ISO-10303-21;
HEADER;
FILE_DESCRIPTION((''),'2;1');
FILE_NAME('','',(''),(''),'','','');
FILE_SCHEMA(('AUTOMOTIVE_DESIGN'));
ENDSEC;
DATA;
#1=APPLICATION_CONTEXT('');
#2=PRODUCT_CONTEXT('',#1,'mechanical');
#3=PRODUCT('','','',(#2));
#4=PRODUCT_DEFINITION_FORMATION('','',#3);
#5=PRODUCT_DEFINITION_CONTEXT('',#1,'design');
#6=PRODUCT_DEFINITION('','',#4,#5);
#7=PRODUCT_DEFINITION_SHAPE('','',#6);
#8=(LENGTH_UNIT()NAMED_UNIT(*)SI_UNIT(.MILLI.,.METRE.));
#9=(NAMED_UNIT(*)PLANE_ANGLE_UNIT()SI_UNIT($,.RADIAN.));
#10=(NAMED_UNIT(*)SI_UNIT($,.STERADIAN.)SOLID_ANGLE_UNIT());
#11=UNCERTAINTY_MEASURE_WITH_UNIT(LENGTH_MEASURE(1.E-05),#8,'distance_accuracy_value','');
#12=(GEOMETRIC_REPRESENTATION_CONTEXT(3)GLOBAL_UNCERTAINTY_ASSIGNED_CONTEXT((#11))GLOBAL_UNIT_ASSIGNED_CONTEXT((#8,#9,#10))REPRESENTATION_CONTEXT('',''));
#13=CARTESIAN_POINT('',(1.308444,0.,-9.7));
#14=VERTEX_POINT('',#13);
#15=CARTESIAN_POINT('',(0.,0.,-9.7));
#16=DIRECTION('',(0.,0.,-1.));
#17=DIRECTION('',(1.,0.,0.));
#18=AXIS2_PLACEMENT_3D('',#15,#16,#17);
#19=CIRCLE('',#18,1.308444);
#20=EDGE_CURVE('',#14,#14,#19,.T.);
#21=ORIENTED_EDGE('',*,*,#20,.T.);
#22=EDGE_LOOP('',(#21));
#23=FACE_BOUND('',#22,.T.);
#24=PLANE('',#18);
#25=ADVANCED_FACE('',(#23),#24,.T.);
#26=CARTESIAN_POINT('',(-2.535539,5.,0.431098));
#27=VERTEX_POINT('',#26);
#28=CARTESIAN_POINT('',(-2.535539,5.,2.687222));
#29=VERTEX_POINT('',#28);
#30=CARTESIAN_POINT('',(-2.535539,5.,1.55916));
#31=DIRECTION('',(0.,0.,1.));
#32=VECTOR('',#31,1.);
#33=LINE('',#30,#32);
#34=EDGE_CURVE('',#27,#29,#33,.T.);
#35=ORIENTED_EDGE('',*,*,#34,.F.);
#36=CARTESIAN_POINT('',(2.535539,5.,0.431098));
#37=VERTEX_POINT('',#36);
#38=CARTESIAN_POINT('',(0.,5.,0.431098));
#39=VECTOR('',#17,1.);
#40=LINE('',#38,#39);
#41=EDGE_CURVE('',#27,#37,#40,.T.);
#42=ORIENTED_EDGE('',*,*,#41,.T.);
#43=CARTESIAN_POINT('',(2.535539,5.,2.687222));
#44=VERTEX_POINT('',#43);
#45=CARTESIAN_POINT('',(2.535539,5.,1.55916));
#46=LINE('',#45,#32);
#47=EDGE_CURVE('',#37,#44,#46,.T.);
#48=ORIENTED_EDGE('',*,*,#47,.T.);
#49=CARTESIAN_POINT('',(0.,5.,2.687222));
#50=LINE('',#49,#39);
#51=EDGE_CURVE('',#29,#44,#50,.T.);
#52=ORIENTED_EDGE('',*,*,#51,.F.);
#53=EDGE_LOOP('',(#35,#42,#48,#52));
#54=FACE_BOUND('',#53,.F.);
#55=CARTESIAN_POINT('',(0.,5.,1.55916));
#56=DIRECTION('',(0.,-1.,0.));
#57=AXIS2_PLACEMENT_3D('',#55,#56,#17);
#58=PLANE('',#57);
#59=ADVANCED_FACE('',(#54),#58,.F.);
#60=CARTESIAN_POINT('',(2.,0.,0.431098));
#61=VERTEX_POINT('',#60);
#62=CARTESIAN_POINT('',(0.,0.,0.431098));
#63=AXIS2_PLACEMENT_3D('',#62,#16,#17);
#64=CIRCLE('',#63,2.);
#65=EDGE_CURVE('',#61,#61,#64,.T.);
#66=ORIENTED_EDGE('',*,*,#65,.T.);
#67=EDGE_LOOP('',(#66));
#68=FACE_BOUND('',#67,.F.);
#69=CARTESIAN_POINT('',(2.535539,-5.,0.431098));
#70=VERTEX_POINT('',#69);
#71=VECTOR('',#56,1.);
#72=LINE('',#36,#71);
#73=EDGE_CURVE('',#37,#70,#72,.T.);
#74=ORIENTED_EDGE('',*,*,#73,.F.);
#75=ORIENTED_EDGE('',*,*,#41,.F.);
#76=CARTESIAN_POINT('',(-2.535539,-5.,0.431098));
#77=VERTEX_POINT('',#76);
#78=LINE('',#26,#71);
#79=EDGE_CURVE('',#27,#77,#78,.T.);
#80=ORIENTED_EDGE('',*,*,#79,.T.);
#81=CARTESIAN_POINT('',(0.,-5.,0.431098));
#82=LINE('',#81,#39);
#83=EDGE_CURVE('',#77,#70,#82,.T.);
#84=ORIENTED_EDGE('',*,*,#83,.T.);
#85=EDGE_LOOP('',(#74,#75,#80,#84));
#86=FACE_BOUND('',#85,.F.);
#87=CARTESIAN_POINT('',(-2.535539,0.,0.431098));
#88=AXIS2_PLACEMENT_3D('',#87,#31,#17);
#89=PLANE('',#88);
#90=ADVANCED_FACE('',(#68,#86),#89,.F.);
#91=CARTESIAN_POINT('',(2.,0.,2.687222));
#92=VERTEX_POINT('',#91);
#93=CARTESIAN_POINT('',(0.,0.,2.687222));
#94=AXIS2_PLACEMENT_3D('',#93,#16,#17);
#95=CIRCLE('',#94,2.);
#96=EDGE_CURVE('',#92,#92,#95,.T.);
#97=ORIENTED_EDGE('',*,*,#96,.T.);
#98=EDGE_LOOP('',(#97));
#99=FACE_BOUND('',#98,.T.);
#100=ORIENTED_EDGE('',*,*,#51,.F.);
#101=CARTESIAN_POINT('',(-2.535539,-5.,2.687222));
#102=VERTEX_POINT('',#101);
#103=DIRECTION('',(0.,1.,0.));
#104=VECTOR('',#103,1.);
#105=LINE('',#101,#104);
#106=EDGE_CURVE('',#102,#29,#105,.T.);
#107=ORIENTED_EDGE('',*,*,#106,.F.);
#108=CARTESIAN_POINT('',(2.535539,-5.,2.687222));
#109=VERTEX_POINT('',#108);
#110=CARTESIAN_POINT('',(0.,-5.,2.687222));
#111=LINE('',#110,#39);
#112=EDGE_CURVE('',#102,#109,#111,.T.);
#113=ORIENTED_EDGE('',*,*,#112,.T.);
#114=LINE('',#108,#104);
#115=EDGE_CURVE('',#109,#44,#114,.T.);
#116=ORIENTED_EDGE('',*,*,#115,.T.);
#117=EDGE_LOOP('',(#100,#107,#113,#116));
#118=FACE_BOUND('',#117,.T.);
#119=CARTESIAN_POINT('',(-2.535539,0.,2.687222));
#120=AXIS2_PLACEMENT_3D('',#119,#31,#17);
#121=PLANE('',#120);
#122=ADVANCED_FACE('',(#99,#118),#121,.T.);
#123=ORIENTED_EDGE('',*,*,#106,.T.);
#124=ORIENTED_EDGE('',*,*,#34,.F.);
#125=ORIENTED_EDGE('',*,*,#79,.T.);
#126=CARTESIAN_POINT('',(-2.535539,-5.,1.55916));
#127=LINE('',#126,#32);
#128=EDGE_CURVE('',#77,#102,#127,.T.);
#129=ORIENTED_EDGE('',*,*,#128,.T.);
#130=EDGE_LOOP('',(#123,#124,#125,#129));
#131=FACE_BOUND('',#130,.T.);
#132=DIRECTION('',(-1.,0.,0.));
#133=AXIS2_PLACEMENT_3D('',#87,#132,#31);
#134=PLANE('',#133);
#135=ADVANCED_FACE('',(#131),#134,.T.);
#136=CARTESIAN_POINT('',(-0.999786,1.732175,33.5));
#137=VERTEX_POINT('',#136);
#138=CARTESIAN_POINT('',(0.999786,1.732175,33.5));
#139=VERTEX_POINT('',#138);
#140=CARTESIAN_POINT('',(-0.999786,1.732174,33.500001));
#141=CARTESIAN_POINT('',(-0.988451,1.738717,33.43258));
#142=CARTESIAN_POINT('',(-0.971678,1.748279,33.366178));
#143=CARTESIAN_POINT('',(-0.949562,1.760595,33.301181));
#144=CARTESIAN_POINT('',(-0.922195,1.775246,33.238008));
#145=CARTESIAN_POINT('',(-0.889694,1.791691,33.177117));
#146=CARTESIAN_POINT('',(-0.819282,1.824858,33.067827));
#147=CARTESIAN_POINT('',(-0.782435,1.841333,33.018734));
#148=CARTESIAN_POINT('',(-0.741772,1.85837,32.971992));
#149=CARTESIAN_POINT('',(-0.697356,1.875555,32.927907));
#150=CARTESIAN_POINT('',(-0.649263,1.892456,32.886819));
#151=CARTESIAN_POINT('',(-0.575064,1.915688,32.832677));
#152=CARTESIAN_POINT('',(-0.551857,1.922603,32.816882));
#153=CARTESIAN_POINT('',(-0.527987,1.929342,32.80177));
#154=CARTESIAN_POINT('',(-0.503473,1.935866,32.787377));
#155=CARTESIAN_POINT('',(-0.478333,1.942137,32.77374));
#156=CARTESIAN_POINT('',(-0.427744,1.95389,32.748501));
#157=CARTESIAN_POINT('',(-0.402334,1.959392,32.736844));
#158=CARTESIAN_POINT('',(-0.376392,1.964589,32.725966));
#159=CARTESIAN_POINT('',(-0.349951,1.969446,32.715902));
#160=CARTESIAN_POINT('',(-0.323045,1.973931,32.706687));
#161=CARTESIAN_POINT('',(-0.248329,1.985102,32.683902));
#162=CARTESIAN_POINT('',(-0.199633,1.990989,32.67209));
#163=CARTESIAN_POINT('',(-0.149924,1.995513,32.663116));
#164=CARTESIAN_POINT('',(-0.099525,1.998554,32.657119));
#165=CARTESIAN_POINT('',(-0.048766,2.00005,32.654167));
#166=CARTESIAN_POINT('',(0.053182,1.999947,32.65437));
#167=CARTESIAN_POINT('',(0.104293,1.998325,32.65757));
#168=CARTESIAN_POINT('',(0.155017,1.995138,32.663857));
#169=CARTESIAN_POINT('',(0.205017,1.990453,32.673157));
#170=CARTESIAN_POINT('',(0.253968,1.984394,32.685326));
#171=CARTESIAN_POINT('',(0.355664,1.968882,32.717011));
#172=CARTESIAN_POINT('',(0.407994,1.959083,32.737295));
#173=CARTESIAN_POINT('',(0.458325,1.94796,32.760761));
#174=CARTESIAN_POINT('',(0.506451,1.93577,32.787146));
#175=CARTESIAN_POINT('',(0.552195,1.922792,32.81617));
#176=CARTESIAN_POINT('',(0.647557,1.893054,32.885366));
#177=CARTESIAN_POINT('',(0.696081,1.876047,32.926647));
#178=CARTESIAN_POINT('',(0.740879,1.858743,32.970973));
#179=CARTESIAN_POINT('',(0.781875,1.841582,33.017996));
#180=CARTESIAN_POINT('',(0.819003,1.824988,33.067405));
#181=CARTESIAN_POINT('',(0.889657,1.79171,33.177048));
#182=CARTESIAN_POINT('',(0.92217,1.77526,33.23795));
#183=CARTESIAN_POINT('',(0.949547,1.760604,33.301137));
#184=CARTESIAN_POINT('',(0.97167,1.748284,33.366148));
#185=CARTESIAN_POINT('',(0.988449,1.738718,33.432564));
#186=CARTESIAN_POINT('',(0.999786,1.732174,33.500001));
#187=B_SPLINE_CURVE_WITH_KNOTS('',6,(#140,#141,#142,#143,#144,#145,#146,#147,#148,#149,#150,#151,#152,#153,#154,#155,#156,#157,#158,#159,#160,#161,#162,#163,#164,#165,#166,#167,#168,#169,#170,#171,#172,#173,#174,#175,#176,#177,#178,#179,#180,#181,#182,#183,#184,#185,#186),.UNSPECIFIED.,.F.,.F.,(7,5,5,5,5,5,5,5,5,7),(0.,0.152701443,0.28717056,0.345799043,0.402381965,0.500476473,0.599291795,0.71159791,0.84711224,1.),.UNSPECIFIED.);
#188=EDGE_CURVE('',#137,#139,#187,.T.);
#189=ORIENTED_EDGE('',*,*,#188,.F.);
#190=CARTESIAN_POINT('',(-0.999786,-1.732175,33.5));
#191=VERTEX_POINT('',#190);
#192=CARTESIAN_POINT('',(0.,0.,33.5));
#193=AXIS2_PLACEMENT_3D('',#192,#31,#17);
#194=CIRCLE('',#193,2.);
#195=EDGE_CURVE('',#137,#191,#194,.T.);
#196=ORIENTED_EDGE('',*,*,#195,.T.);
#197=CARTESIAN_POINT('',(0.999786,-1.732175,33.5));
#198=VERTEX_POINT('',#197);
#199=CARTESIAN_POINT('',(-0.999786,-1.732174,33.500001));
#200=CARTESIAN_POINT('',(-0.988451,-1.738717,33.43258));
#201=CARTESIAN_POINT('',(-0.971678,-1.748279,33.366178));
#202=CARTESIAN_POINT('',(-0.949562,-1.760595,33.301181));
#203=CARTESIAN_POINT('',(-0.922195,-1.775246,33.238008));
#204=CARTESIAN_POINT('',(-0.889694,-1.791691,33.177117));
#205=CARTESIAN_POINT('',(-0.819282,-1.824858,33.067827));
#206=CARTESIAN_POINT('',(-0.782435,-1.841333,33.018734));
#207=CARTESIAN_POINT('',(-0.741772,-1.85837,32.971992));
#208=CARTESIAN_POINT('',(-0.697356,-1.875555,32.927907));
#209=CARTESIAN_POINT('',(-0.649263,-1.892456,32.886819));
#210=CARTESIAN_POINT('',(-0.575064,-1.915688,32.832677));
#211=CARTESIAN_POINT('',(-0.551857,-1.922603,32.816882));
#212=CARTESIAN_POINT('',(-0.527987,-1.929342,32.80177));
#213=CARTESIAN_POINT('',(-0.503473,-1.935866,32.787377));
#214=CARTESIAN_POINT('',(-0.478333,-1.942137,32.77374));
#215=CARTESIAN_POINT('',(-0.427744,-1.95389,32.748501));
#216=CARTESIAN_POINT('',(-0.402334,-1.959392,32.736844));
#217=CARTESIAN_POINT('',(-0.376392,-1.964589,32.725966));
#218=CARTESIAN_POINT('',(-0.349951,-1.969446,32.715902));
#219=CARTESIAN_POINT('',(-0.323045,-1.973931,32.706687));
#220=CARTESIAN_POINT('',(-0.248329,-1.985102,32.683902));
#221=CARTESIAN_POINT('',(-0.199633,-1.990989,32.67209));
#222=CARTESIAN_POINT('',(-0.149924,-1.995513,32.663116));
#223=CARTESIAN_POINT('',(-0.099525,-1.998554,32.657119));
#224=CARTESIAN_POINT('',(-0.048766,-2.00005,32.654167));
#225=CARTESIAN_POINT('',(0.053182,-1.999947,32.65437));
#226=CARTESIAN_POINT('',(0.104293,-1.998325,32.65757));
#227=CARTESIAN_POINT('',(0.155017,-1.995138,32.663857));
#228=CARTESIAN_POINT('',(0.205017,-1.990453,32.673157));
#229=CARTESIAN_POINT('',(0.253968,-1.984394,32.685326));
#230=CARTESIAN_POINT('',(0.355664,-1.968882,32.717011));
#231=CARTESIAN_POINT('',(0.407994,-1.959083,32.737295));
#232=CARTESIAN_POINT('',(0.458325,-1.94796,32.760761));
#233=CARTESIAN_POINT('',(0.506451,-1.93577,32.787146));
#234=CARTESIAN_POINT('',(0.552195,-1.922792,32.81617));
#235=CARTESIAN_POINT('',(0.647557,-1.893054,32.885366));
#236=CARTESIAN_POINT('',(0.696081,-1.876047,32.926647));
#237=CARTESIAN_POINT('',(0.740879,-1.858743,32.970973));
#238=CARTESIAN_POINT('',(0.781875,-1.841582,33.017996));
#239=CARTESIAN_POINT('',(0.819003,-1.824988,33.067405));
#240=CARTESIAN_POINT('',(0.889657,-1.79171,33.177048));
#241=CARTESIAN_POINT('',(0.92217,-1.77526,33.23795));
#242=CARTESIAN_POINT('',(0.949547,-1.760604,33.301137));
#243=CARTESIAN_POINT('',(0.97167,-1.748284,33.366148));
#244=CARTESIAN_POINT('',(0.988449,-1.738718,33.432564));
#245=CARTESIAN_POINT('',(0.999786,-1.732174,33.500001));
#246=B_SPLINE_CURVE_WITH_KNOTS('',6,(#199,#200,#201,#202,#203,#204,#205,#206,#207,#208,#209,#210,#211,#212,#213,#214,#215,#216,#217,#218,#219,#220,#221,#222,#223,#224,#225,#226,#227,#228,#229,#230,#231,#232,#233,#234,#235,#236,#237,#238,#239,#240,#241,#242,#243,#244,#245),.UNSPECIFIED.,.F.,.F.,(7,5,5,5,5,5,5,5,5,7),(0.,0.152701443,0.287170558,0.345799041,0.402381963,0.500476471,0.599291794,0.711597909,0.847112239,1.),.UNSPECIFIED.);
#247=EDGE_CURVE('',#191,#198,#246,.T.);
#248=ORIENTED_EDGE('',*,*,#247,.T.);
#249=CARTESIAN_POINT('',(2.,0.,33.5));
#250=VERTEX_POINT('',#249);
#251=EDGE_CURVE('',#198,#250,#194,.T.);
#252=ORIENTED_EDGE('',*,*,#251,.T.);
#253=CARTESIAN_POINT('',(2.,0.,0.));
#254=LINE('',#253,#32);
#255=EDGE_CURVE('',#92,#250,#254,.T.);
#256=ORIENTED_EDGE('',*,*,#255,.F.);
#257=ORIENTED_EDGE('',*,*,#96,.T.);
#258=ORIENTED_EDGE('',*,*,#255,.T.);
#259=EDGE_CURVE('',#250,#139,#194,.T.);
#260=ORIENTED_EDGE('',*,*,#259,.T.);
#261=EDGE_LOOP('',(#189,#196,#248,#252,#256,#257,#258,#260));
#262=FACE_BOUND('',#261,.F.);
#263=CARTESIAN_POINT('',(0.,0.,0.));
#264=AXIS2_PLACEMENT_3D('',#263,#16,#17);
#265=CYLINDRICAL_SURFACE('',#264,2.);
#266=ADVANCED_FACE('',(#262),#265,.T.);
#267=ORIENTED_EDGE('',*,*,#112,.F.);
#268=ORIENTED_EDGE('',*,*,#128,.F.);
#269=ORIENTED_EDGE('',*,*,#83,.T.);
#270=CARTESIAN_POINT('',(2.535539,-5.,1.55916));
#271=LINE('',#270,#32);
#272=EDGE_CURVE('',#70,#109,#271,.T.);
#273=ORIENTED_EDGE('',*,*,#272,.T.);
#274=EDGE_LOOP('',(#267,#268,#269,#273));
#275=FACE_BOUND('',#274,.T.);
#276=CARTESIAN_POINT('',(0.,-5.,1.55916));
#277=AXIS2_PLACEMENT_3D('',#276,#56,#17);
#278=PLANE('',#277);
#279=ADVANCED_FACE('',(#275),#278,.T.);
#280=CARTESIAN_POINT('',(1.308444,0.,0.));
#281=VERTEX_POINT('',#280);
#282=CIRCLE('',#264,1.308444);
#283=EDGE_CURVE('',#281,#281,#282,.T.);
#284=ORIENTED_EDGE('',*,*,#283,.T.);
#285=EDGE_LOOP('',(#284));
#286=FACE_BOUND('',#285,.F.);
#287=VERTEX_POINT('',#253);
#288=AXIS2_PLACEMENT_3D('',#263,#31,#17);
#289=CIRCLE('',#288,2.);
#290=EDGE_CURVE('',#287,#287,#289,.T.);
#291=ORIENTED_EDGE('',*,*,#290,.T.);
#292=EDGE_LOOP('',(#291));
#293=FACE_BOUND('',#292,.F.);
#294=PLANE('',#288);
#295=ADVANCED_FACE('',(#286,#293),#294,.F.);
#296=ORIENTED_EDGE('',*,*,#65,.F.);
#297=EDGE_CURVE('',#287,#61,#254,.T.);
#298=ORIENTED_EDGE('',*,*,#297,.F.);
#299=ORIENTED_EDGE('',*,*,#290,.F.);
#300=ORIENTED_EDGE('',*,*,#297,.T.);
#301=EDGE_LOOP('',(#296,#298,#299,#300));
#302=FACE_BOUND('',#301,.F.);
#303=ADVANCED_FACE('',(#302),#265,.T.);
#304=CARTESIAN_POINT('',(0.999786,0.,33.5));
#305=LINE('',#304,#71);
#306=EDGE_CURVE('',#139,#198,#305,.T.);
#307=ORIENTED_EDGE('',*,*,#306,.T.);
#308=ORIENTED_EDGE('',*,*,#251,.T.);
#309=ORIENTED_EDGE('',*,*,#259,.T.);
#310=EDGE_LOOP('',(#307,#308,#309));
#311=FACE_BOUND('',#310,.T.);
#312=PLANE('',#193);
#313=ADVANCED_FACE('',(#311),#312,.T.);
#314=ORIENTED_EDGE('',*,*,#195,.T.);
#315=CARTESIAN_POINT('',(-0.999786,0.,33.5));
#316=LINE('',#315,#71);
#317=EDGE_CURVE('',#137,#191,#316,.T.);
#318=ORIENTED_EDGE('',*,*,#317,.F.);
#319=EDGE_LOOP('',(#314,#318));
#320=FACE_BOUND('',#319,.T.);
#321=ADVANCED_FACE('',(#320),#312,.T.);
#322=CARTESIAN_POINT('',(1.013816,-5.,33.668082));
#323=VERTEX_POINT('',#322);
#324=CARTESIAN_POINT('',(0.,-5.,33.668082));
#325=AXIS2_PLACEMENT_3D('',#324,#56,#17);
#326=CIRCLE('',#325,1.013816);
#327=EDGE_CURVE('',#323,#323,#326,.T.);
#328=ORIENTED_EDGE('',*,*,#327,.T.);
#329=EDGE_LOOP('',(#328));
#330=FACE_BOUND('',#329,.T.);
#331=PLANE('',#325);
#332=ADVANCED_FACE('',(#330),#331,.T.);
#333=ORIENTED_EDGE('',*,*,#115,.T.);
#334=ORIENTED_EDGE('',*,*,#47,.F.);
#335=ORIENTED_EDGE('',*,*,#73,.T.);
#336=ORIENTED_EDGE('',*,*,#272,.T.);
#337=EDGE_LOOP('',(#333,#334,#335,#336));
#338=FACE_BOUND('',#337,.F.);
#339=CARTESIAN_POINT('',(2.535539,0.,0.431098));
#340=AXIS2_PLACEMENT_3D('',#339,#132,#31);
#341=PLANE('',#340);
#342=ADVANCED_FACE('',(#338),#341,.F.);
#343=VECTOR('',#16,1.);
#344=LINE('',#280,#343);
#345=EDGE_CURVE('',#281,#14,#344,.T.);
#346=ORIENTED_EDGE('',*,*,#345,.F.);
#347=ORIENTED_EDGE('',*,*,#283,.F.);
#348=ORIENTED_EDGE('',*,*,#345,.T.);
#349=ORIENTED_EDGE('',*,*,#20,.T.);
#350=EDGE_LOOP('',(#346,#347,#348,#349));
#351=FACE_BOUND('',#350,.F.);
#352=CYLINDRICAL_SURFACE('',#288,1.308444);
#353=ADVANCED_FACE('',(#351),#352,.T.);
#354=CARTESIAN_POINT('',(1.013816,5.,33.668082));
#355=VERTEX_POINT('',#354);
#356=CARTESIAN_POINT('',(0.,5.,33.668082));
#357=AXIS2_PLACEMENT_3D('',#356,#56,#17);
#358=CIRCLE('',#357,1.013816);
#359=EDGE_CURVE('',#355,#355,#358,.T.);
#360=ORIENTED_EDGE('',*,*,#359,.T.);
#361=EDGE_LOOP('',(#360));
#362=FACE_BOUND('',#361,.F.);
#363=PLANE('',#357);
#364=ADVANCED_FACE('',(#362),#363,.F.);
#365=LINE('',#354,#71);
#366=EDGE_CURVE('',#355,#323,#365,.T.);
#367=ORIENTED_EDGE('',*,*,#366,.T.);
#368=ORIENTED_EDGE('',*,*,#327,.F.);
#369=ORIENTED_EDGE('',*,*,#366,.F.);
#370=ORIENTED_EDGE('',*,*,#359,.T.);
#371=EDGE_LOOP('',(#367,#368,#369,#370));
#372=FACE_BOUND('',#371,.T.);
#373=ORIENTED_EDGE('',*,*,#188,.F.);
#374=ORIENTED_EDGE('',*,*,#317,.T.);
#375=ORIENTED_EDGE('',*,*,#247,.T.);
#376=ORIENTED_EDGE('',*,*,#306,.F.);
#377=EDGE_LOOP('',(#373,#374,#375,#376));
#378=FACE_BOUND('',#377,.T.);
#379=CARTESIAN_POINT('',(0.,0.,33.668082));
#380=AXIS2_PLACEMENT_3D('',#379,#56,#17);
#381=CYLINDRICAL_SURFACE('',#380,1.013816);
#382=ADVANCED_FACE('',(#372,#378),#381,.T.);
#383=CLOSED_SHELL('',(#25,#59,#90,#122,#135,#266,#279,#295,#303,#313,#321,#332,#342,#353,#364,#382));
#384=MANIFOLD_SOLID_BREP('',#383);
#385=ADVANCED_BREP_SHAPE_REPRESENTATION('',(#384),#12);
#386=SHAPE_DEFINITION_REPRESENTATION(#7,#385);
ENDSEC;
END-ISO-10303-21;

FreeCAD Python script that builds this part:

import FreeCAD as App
import Part
import Sketcher

doc = App.newDocument("Part")
params = doc.addObject("Spreadsheet::Sheet", "Params")
for row, (alias, value) in enumerate([
    ("sketch1_diameter", "4 mm"),
    ("pad1_length", "33.5 mm"),
    ("pad2_length", "9.7 mm"),
    ("pad3_length", "10 mm"),
], start=1):
    params.set(f"A{row}", alias)
    params.set(f"B{row}", "=" + value)
    params.setAlias(f"B{row}", alias)

body = doc.addObject("PartDesign::Body", "Body")

sketch1 = doc.addObject("Sketcher::SketchObject", "Sketch")
body.addObject(sketch1)
sketch1.AttachmentSupport = (doc.XY_Plane, [""])
sketch1.MapMode = "FlatFace"
sketch1.addGeometry(Part.Circle(App.Vector(0, 0, 0), App.Vector(0, 0, 1), 2), False)
sketch1.addConstraint([
    Sketcher.Constraint("Coincident", 0, 3, -1, 1),
    Sketcher.Constraint("Diameter", 0, 4.0),
])
sketch1.setExpression("Constraints[1]", "Params.sketch1_diameter")
pad1 = doc.addObject("PartDesign::Pad", "Pad")
body.addObject(pad1)
pad1.Profile = sketch1
pad1.setExpression("Length", "Params.pad1_length")

sketch2 = doc.addObject("Sketcher::SketchObject", "Sketch001")
body.addObject(sketch2)
sketch2.AttachmentSupport = (doc.XY_Plane, [""])
sketch2.MapMode = "FlatFace"
sketch2.addGeometry(Part.Circle(App.Vector(0, 0, 0), App.Vector(0, 0, 1), 1.308444), False)
sketch2.addConstraint([
    Sketcher.Constraint("Coincident", 0, 3, -1, 1),
    Sketcher.Constraint("Diameter", 0, 2.616888),
])
pad2 = doc.addObject("PartDesign::Pad", "Pad001")
body.addObject(pad2)
pad2.Profile = sketch2
pad2.setExpression("Length", "Params.pad2_length")
pad2.Reversed = True

sketch3 = doc.addObject("Sketcher::SketchObject", "Sketch002")
body.addObject(sketch3)
sketch3.AttachmentSupport = (doc.XZ_Plane, [""])
sketch3.MapMode = "FlatFace"
sketch3.addGeometry([
    Part.LineSegment(App.Vector(-2.535539, 2.687222, 0), App.Vector(-2.535539, 0.431098, 0)),
    Part.LineSegment(App.Vector(-2.535539, 0.431098, 0), App.Vector(2.535539, 0.431098, 0)),
    Part.LineSegment(App.Vector(2.535539, 0.431098, 0), App.Vector(2.535539, 2.687222, 0)),
    Part.LineSegment(App.Vector(2.535539, 2.687222, 0), App.Vector(-2.535539, 2.687222, 0)),
    Part.Circle(App.Vector(0, 33.668082, 0), App.Vector(0, 0, 1), 1.013816),
], False)
sketch3.addConstraint([
    Sketcher.Constraint("Coincident", 0, 2, 1, 1),
    Sketcher.Constraint("Coincident", 1, 2, 2, 1),
    Sketcher.Constraint("Coincident", 2, 2, 3, 1),
    Sketcher.Constraint("Coincident", 3, 2, 0, 1),
    Sketcher.Constraint("Vertical", 0),
    Sketcher.Constraint("Horizontal", 1),
    Sketcher.Constraint("Vertical", 2),
    Sketcher.Constraint("Horizontal", 3),
    Sketcher.Constraint("PointOnObject", 4, 3, -2),
    Sketcher.Constraint("Diameter", 4, 2.027632),
    Sketcher.Constraint("DistanceX", 1, 1, 1, 2, 5.071078),
    Sketcher.Constraint("DistanceY", 0, 2, 0, 1, 2.256125),
    Sketcher.Constraint("DistanceY", -1, 1, 4, 3, 33.668082),
    Sketcher.Constraint("DistanceX", 0, 2, -1, 1, 2.535539),
    Sketcher.Constraint("DistanceY", 2, 2, 4, 3, 30.980859),
])
pad3 = doc.addObject("PartDesign::Pad", "Pad002")
body.addObject(pad3)
pad3.Profile = sketch3
pad3.setExpression("Length", "Params.pad3_length")
pad3.Midplane = True

doc.recompute()
